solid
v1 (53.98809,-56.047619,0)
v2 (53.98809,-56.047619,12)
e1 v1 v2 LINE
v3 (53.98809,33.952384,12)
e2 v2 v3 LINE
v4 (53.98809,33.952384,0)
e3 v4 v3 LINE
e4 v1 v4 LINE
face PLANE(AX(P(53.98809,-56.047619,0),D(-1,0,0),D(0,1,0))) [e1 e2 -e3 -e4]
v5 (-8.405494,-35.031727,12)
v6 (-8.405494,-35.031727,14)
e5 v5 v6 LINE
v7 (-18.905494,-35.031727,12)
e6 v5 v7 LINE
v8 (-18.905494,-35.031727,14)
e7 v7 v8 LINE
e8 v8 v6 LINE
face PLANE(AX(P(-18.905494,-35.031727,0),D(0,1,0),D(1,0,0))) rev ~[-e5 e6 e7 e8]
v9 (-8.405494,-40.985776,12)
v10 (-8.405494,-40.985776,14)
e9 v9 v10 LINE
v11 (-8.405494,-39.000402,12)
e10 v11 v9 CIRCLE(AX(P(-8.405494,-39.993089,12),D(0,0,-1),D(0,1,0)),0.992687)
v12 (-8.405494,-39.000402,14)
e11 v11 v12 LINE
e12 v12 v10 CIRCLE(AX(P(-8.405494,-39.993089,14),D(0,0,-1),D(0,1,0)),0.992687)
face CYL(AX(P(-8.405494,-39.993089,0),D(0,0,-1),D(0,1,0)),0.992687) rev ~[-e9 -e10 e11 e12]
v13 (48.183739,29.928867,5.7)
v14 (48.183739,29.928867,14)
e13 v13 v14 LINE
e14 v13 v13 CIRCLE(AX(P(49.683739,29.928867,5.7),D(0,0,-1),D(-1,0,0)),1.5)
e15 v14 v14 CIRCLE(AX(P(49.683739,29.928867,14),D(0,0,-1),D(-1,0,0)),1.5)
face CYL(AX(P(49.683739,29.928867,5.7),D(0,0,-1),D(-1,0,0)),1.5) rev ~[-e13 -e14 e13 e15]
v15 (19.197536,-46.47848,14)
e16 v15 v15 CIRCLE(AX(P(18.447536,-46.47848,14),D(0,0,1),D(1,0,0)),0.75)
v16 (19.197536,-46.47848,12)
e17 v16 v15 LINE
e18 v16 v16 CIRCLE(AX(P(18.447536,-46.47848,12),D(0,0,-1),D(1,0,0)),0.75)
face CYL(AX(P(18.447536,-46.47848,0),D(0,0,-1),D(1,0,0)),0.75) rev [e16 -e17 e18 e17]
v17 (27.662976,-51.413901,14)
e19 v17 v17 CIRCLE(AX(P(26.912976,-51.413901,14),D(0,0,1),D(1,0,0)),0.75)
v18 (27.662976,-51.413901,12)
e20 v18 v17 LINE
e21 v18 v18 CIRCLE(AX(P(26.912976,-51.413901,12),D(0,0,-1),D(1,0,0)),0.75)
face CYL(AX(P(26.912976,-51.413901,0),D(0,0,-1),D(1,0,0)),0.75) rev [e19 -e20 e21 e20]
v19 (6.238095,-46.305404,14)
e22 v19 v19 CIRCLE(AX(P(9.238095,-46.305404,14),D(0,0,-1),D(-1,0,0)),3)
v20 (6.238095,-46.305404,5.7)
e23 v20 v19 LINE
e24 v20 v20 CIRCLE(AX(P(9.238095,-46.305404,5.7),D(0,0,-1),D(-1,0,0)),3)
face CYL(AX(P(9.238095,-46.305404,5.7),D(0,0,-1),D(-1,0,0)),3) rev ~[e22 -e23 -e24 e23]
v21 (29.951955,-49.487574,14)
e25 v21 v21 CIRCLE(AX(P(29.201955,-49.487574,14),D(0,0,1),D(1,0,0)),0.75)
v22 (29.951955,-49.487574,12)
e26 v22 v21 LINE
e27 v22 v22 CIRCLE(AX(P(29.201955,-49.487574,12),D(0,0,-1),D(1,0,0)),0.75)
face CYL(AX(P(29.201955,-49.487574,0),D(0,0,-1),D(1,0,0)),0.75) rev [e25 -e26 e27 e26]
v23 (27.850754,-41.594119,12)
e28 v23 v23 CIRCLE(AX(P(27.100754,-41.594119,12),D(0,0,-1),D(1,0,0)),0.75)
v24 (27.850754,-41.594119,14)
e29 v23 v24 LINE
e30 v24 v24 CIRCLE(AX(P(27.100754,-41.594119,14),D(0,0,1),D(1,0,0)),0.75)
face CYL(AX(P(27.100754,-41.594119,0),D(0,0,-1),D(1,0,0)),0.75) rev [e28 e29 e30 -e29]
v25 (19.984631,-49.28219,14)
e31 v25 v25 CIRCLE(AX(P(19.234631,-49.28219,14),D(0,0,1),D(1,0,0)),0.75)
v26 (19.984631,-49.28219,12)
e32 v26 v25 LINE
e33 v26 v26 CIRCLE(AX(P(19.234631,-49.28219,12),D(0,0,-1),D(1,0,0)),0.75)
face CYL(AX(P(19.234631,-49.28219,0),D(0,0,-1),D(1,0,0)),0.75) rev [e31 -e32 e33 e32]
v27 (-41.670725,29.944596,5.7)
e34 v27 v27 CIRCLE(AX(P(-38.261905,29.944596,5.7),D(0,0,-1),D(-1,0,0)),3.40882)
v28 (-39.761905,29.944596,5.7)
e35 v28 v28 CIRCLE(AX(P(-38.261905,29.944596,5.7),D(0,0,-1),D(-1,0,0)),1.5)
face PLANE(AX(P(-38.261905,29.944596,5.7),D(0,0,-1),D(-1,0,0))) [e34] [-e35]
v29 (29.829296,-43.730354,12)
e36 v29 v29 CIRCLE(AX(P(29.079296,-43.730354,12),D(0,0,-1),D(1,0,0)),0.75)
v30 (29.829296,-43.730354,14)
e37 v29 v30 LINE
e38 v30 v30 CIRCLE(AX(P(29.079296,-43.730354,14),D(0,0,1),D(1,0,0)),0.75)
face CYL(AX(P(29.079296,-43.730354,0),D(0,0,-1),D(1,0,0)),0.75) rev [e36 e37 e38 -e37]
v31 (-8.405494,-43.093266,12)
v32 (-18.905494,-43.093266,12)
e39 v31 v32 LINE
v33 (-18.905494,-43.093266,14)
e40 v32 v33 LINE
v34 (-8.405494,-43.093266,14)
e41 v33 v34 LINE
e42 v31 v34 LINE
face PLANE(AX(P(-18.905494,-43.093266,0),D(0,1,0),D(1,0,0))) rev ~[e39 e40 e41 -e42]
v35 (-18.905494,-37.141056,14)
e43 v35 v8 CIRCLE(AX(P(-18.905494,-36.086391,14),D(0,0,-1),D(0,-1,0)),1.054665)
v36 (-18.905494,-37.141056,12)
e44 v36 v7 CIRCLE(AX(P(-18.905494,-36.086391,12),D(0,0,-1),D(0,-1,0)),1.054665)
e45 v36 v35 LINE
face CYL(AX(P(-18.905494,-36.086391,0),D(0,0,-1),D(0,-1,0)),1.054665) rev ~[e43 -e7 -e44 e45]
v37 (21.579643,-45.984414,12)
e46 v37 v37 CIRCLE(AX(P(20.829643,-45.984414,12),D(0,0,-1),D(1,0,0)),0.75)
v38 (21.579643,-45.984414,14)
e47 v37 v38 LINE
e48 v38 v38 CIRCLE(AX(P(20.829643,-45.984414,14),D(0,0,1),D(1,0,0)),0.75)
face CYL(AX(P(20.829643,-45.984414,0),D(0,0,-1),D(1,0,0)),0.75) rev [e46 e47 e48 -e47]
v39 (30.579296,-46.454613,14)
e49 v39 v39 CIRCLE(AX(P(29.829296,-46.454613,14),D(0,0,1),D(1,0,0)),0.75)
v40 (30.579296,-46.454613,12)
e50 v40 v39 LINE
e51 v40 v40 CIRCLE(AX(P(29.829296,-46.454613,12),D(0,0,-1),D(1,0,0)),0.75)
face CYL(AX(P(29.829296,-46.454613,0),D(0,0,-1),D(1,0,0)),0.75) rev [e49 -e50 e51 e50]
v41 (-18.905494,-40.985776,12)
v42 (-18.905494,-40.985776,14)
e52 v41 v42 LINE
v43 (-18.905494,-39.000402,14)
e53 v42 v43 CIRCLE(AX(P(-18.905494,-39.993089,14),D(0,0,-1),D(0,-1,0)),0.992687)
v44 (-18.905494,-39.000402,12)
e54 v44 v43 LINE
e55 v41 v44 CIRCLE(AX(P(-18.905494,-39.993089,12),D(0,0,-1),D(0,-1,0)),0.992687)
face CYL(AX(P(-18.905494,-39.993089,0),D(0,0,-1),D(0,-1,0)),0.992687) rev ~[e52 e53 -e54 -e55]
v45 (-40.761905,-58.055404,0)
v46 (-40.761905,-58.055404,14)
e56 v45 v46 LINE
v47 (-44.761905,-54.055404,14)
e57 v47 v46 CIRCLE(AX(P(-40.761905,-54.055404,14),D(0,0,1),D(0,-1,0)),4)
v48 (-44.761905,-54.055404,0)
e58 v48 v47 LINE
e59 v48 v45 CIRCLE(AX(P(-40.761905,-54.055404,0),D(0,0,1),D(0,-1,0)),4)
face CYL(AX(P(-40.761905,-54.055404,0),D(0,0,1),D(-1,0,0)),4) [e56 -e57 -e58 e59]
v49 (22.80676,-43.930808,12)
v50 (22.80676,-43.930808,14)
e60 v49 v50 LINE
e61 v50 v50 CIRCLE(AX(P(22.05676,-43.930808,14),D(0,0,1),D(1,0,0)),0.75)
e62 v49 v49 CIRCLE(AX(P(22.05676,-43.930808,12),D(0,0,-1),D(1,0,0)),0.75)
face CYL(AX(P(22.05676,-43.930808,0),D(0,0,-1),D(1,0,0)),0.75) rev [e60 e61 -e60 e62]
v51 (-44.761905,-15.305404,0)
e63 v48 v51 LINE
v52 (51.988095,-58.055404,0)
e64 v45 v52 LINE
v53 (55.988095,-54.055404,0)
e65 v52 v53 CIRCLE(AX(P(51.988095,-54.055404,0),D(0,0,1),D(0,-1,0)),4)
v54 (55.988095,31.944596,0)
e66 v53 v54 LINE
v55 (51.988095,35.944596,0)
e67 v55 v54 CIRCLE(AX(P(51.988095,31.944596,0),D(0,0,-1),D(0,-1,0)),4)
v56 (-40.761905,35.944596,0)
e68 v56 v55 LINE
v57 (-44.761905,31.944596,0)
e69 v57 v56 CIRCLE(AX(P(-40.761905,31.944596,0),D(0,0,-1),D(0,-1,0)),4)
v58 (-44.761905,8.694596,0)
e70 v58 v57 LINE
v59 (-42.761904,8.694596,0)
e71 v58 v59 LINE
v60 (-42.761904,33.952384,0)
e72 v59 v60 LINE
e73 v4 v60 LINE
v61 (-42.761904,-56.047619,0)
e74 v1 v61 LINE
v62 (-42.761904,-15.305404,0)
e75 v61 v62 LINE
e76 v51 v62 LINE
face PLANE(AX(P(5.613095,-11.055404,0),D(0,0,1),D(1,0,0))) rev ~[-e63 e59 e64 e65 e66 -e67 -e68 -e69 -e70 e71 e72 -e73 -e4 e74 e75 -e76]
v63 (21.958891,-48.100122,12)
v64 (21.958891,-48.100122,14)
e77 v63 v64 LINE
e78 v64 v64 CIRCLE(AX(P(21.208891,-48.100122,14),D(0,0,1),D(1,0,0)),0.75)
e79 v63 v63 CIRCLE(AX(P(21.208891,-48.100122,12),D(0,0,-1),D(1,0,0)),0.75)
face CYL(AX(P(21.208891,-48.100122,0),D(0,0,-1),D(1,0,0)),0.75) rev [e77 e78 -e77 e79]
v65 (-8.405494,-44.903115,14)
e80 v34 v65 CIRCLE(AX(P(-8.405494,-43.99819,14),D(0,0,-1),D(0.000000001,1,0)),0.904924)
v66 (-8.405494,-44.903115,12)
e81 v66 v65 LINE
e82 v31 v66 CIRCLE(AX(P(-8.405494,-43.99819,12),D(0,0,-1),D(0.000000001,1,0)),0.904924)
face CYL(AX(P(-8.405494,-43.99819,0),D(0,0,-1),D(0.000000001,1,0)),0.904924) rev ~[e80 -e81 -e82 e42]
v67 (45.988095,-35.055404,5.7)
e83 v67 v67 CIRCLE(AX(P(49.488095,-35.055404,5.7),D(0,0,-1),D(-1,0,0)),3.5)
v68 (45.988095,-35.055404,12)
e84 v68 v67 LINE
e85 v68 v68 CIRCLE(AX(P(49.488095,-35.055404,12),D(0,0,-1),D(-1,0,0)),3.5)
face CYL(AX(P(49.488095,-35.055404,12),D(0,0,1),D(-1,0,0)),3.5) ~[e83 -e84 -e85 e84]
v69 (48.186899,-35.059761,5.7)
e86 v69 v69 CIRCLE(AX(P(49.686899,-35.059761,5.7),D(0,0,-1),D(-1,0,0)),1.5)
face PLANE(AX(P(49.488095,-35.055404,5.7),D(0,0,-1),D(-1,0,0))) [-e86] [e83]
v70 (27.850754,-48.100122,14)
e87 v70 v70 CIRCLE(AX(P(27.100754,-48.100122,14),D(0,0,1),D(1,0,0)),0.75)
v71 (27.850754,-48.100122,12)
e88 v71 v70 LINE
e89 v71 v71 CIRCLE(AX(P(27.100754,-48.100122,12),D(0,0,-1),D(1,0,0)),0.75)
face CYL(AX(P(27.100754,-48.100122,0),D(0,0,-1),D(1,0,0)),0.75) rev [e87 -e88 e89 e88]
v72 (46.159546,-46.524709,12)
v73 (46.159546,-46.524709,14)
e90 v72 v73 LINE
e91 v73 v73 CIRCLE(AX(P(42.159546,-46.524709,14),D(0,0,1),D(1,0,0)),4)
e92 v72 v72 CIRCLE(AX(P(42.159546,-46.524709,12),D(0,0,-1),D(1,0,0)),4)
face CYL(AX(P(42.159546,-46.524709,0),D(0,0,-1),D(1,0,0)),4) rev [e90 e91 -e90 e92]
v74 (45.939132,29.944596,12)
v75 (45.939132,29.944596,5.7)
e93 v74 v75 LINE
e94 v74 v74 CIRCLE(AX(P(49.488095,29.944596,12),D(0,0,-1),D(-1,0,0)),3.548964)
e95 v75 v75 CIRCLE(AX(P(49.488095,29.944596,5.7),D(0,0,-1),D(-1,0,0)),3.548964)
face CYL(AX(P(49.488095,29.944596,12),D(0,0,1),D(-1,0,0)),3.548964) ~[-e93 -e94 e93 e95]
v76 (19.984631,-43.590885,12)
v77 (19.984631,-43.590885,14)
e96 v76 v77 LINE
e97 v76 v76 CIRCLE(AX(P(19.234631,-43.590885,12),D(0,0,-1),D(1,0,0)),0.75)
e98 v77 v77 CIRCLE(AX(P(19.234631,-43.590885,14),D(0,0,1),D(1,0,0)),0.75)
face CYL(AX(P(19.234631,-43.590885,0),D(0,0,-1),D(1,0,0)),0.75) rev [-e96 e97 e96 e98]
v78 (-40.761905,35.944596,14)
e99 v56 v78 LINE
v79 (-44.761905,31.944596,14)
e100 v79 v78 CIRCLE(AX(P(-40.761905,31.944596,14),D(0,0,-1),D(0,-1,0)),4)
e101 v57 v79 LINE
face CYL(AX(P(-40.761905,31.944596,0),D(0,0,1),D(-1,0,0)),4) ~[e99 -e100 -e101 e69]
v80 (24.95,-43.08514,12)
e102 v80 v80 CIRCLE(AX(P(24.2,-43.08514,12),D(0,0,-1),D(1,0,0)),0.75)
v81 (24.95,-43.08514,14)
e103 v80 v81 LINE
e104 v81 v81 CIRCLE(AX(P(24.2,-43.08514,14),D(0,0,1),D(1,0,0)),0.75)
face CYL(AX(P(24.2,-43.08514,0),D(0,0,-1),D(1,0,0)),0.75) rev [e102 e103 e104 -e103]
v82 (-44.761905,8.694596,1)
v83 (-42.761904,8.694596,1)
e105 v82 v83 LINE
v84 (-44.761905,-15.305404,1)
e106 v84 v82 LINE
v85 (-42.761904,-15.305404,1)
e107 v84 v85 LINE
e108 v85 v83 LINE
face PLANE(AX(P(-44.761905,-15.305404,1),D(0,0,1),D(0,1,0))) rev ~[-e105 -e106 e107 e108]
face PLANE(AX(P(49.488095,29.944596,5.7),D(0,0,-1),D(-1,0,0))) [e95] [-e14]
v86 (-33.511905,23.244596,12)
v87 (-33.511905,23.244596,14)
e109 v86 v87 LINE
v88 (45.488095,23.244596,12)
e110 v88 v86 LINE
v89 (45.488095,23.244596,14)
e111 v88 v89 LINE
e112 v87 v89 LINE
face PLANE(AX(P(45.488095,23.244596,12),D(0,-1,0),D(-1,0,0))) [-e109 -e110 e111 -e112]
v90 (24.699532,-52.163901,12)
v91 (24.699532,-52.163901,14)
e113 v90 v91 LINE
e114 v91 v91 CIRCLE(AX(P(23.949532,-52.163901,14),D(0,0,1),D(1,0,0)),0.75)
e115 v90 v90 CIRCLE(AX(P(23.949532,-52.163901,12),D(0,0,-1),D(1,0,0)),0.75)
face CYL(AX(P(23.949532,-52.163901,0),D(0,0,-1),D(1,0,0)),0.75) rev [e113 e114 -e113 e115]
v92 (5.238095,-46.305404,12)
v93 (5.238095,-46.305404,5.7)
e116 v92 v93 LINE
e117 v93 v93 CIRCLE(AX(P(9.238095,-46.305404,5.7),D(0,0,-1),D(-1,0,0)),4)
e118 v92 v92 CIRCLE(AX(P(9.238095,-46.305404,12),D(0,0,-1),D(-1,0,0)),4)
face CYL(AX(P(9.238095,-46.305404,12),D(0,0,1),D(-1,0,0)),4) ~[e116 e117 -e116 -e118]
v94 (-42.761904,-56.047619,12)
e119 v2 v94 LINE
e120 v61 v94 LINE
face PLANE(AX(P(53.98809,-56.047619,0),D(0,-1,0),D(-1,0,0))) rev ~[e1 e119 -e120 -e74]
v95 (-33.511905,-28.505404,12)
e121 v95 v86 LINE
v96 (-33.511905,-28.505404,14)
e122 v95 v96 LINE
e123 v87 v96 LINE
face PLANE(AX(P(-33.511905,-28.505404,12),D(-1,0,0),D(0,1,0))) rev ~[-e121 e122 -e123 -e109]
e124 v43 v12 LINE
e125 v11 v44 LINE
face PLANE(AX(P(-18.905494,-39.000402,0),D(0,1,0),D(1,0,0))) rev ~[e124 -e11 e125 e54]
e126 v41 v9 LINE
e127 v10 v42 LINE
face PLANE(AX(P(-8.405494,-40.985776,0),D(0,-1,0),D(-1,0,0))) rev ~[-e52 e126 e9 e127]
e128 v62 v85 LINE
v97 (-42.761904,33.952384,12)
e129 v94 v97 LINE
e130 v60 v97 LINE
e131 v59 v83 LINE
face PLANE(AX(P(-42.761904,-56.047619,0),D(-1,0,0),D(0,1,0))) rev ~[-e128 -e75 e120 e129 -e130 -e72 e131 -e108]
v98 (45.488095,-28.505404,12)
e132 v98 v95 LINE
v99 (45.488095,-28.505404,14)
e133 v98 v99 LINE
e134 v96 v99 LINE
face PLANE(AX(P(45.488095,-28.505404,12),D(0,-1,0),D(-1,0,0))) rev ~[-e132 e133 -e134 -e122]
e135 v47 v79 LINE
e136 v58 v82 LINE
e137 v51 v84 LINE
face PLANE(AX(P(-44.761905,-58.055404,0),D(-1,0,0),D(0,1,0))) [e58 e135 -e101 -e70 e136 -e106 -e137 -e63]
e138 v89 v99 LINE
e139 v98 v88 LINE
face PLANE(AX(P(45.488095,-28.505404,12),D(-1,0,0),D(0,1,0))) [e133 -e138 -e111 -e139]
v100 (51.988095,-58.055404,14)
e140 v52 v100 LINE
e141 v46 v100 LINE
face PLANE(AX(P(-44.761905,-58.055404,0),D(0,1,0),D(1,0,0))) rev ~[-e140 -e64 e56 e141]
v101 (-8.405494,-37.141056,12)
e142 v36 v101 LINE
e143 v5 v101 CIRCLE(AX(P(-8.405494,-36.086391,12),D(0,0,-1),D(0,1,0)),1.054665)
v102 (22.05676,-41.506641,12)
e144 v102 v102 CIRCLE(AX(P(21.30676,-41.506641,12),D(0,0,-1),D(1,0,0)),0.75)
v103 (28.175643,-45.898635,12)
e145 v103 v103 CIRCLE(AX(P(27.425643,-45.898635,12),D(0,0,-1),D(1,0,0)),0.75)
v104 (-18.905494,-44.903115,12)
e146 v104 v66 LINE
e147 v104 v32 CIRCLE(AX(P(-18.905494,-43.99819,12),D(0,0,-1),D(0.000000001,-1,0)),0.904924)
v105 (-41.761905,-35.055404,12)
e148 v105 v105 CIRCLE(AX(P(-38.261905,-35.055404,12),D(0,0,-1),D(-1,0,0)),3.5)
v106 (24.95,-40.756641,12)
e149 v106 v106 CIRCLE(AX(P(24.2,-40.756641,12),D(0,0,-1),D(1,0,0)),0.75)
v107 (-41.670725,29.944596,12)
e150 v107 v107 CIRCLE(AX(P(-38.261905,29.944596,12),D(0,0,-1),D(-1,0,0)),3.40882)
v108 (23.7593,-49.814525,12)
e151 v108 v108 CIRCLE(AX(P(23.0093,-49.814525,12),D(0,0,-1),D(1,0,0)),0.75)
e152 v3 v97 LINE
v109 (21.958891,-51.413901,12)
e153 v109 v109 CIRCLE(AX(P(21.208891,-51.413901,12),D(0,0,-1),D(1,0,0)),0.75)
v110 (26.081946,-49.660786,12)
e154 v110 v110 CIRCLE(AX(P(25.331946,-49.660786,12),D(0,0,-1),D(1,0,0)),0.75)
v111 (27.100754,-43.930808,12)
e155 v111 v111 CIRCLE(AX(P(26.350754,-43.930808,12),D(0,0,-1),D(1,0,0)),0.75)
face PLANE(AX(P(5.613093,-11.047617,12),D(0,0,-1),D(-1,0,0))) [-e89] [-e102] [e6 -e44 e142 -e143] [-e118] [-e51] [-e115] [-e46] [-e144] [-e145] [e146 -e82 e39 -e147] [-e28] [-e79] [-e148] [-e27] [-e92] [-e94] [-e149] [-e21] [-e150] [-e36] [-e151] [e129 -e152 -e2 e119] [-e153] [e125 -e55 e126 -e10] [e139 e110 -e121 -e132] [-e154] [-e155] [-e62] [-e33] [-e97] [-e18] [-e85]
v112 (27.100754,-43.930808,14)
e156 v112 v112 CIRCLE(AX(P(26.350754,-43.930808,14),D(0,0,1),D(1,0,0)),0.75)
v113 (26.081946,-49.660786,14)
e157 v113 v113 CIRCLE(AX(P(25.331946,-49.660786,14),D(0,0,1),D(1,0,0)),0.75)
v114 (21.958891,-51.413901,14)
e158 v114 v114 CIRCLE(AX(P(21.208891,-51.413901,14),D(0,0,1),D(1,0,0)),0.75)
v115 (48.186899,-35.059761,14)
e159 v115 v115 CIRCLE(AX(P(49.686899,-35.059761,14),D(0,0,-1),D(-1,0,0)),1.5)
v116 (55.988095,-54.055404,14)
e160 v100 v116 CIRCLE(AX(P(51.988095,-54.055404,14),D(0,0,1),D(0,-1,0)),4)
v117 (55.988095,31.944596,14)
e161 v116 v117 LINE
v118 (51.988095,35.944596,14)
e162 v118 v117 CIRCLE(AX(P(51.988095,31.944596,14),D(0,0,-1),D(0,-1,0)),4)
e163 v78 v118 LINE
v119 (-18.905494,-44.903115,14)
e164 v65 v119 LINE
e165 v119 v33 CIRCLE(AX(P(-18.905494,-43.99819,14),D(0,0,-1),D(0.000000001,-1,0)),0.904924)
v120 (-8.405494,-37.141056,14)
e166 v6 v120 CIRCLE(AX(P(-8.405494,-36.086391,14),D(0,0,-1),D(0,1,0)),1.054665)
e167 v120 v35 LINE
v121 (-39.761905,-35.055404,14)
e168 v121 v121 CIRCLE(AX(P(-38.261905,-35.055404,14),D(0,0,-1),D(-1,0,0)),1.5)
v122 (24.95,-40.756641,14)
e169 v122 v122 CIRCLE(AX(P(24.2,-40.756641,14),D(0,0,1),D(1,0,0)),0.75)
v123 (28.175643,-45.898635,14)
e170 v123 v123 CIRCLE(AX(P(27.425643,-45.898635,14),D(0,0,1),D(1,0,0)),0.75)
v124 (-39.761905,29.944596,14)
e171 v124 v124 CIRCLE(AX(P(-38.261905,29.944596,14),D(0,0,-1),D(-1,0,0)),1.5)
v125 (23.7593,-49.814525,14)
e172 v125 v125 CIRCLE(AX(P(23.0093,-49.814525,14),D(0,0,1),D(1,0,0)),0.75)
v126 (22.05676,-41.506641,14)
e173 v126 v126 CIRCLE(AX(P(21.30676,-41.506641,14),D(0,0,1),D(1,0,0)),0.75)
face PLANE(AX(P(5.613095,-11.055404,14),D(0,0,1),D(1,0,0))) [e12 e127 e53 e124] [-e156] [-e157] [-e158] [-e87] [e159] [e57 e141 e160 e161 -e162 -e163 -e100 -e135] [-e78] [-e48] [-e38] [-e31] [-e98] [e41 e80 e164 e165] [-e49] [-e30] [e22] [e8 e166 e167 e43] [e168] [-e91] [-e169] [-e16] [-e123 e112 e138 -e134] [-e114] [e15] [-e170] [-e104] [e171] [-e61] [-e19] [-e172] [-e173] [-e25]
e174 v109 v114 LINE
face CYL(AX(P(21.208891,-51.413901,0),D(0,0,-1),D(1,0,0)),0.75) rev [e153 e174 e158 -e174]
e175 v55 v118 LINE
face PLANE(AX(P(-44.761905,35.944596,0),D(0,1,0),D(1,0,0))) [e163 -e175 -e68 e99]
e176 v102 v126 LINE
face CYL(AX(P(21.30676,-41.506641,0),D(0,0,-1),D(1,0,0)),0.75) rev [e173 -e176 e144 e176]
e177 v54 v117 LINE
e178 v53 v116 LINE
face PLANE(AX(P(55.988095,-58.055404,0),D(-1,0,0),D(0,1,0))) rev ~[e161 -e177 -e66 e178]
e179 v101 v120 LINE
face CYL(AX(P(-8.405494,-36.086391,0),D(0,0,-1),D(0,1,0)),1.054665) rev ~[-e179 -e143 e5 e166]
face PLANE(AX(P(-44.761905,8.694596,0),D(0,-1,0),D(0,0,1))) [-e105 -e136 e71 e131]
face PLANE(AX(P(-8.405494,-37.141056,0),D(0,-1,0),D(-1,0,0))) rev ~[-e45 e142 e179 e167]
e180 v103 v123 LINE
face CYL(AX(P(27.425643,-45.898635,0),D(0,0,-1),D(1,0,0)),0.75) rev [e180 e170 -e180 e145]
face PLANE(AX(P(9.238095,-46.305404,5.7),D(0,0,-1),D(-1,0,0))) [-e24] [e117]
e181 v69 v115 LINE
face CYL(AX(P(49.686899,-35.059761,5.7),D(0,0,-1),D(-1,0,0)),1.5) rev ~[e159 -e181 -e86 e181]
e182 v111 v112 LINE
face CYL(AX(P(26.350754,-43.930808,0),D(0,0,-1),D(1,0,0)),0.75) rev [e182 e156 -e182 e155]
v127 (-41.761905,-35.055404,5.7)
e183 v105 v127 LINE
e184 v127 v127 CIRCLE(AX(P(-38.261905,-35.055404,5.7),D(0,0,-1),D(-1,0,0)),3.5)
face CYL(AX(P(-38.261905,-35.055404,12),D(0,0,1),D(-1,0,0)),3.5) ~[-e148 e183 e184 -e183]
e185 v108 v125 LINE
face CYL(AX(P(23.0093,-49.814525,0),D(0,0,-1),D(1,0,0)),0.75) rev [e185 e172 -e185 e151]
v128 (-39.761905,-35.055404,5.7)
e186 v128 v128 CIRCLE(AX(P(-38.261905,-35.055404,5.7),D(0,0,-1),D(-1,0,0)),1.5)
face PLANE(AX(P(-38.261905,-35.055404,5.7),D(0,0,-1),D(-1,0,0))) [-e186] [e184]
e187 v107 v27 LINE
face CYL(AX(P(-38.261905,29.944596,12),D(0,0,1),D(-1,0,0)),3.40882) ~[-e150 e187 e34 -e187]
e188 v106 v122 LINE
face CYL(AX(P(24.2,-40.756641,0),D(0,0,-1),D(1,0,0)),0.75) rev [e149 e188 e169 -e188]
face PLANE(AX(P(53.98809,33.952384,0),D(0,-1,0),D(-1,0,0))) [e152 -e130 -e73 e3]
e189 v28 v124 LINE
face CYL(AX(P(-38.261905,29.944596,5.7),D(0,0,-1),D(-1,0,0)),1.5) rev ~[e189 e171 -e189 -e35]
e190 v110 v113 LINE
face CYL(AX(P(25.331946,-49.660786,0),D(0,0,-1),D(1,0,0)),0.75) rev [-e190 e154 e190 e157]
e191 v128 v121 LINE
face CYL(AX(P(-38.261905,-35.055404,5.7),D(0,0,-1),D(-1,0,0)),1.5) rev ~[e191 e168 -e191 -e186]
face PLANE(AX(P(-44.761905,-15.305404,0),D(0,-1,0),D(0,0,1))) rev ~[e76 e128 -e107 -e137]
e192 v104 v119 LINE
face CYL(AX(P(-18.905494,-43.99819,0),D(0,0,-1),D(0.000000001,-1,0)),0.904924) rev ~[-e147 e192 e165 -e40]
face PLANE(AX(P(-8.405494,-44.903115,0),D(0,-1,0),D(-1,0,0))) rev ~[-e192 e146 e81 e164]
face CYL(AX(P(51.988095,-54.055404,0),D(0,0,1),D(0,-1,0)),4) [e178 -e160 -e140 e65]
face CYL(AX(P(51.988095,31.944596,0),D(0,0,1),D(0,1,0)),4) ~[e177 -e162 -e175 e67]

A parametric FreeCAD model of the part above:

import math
import FreeCAD as App
import Part
import Sketcher
Q = App.Units.Quantity


def edges_at(feature, points):
    """Names of the edges that pass closest to the given points."""
    edges = feature.Shape.Edges
    near = lambda p: min(range(len(edges)), key=lambda i: edges[i].distToShape(Part.Vertex(*p))[0])
    return sorted({f"Edge{near(p) + 1}" for p in points})


def add_polygon(sketch, points):
    """Adds a closed chain of lines whose ends are joined by coincident constraints."""
    first, n = sketch.GeometryCount, len(points)
    for a, b in zip(points, points[1:] + points[:1]):
        sketch.addGeometry(Part.LineSegment(App.Vector(*a, 0), App.Vector(*b, 0)), False)
    for i in range(n):
        sketch.addConstraint(Sketcher.Constraint("Coincident", first + i, 2, first + (i + 1) % n, 1))

doc = App.newDocument("Part")
body = doc.addObject("PartDesign::Body", "Body")

# Sketch on XY plane
sketch1 = doc.addObject("Sketcher::SketchObject", "Sketch")
body.addObject(sketch1)
sketch1.AttachmentSupport = (doc.XY_Plane, [""])
sketch1.MapMode = "FlatFace"
add_polygon(sketch1, [(-44.8, 35.9), (-44.8, -58.1), (56, -58.1), (56, 35.9)])  # lines 0-3
sketch1.addGeometry(Part.ArcOfCircle(Part.Circle(App.Vector(-18.9, -44, 0), App.Vector(0, 0, 1), 0.9), math.radians(90), math.radians(270)), False)  # 4
sketch1.addGeometry(Part.LineSegment(App.Vector(-18.9, -43.1, 0), App.Vector(-8.4, -43.1, 0)), False)  # 5
sketch1.addGeometry(Part.ArcOfCircle(Part.Circle(App.Vector(-8.4, -44, 0), App.Vector(0, 0, 1), 0.9), math.radians(-90), math.radians(90)), False)  # 6
sketch1.addGeometry(Part.LineSegment(App.Vector(-8.4, -44.9, 0), App.Vector(-18.9, -44.9, 0)), False)  # 7
sketch1.addGeometry(Part.Circle(App.Vector(21.2, -51.4, 0), App.Vector(0, 0, 1), 0.8), False)  # 8
sketch1.addGeometry(Part.Circle(App.Vector(23.9, -52.2, 0), App.Vector(0, 0, 1), 0.8), False)  # 9
sketch1.addGeometry(Part.Circle(App.Vector(26.9, -51.4, 0), App.Vector(0, 0, 1), 0.8), False)  # 10
sketch1.addGeometry(Part.Circle(App.Vector(19.2, -49.3, 0), App.Vector(0, 0, 1), 0.8), False)  # 11
sketch1.addGeometry(Part.Circle(App.Vector(23, -49.8, 0), App.Vector(0, 0, 1), 0.8), False)  # 12
sketch1.addGeometry(Part.Circle(App.Vector(25.3, -49.7, 0), App.Vector(0, 0, 1), 0.8), False)  # 13
sketch1.addGeometry(Part.Circle(App.Vector(29.2, -49.5, 0), App.Vector(0, 0, 1), 0.8), False)  # 14
sketch1.addGeometry(Part.Circle(App.Vector(21.2, -48.1, 0), App.Vector(0, 0, 1), 0.8), False)  # 15
sketch1.addGeometry(Part.Circle(App.Vector(18.4, -46.5, 0), App.Vector(0, 0, 1), 0.8), False)  # 16
sketch1.addGeometry(Part.Circle(App.Vector(27.1, -48.1, 0), App.Vector(0, 0, 1), 0.8), False)  # 17
sketch1.addGeometry(Part.Circle(App.Vector(20.8, -46, 0), App.Vector(0, 0, 1), 0.8), False)  # 18
sketch1.addGeometry(Part.Circle(App.Vector(27.4, -45.9, 0), App.Vector(0, 0, 1), 0.8), False)  # 19
sketch1.addGeometry(Part.Circle(App.Vector(29.8, -46.5, 0), App.Vector(0, 0, 1), 0.8), False)  # 20
sketch1.addGeometry(Part.Circle(App.Vector(42.2, -46.5, 0), App.Vector(0, 0, 1), 4), False)  # 21
sketch1.addGeometry(Part.ArcOfCircle(Part.Circle(App.Vector(-18.9, -40, 0), App.Vector(0, 0, 1), 1), math.radians(90), math.radians(270)), False)  # 22
sketch1.addGeometry(Part.LineSegment(App.Vector(-18.9, -39, 0), App.Vector(-8.4, -39, 0)), False)  # 23
sketch1.addGeometry(Part.ArcOfCircle(Part.Circle(App.Vector(-8.4, -40, 0), App.Vector(0, 0, 1), 1), math.radians(-90), math.radians(90)), False)  # 24
sketch1.addGeometry(Part.LineSegment(App.Vector(-8.4, -41, 0), App.Vector(-18.9, -41, 0)), False)  # 25
sketch1.addGeometry(Part.ArcOfCircle(Part.Circle(App.Vector(-18.9, -36.1, 0), App.Vector(0, 0, 1), 1.1), math.radians(90), math.radians(270)), False)  # 26
sketch1.addGeometry(Part.LineSegment(App.Vector(-18.9, -35, 0), App.Vector(-8.4, -35, 0)), False)  # 27
sketch1.addGeometry(Part.ArcOfCircle(Part.Circle(App.Vector(-8.4, -36.1, 0), App.Vector(0, 0, 1), 1.1), math.radians(-90), math.radians(90)), False)  # 28
sketch1.addGeometry(Part.LineSegment(App.Vector(-8.4, -37.1, 0), App.Vector(-18.9, -37.1, 0)), False)  # 29
sketch1.addGeometry(Part.Circle(App.Vector(19.2, -43.6, 0), App.Vector(0, 0, 1), 0.8), False)  # 30
sketch1.addGeometry(Part.Circle(App.Vector(22.1, -43.9, 0), App.Vector(0, 0, 1), 0.8), False)  # 31
sketch1.addGeometry(Part.Circle(App.Vector(24.2, -43.1, 0), App.Vector(0, 0, 1), 0.8), False)  # 32
sketch1.addGeometry(Part.Circle(App.Vector(26.4, -43.9, 0), App.Vector(0, 0, 1), 0.8), False)  # 33
sketch1.addGeometry(Part.Circle(App.Vector(29.1, -43.7, 0), App.Vector(0, 0, 1), 0.8), False)  # 34
sketch1.addGeometry(Part.Circle(App.Vector(21.3, -41.5, 0), App.Vector(0, 0, 1), 0.8), False)  # 35
sketch1.addGeometry(Part.Circle(App.Vector(24.2, -40.8, 0), App.Vector(0, 0, 1), 0.8), False)  # 36
sketch1.addGeometry(Part.Circle(App.Vector(27.1, -41.6, 0), App.Vector(0, 0, 1), 0.8), False)  # 37
sketch1.addConstraint(Sketcher.Constraint("Tangent", 4, 1, 5, 1))
sketch1.addConstraint(Sketcher.Constraint("Tangent", 5, 2, 6, 2))
sketch1.addConstraint(Sketcher.Constraint("Tangent", 6, 1, 7, 1))
sketch1.addConstraint(Sketcher.Constraint("Tangent", 7, 2, 4, 2))
sketch1.addConstraint(Sketcher.Constraint("Tangent", 22, 1, 23, 1))
sketch1.addConstraint(Sketcher.Constraint("Tangent", 23, 2, 24, 2))
sketch1.addConstraint(Sketcher.Constraint("Tangent", 24, 1, 25, 1))
sketch1.addConstraint(Sketcher.Constraint("Tangent", 25, 2, 22, 2))
sketch1.addConstraint(Sketcher.Constraint("Tangent", 26, 1, 27, 1))
sketch1.addConstraint(Sketcher.Constraint("Tangent", 27, 2, 28, 2))
sketch1.addConstraint(Sketcher.Constraint("Tangent", 28, 1, 29, 1))
sketch1.addConstraint(Sketcher.Constraint("Tangent", 29, 2, 26, 2))
sketch1.addConstraint(Sketcher.Constraint("Vertical", 0))
sketch1.addConstraint(Sketcher.Constraint("Horizontal", 1))
sketch1.addConstraint(Sketcher.Constraint("Vertical", 2))
sketch1.addConstraint(Sketcher.Constraint("Horizontal", 3))
sketch1.addConstraint(Sketcher.Constraint("Horizontal", 5))
sketch1.addConstraint(Sketcher.Constraint("Horizontal", 7))
sketch1.addConstraint(Sketcher.Constraint("Horizontal", 23))
sketch1.addConstraint(Sketcher.Constraint("Horizontal", 25))
sketch1.addConstraint(Sketcher.Constraint("Horizontal", 27))
sketch1.addConstraint(Sketcher.Constraint("Horizontal", 29))
sketch1.addConstraint(Sketcher.Constraint("Equal", 8, 9))
sketch1.addConstraint(Sketcher.Constraint("Equal", 9, 10))
sketch1.addConstraint(Sketcher.Constraint("Equal", 10, 11))
sketch1.addConstraint(Sketcher.Constraint("Equal", 11, 12))
sketch1.addConstraint(Sketcher.Constraint("Equal", 12, 13))
sketch1.addConstraint(Sketcher.Constraint("Equal", 13, 14))
sketch1.addConstraint(Sketcher.Constraint("Equal", 14, 15))
sketch1.addConstraint(Sketcher.Constraint("Equal", 15, 16))
sketch1.addConstraint(Sketcher.Constraint("Equal", 16, 17))
sketch1.addConstraint(Sketcher.Constraint("Equal", 17, 18))
sketch1.addConstraint(Sketcher.Constraint("Equal", 18, 19))
sketch1.addConstraint(Sketcher.Constraint("Equal", 19, 20))
sketch1.addConstraint(Sketcher.Constraint("Equal", 20, 30))
sketch1.addConstraint(Sketcher.Constraint("Equal", 30, 31))
sketch1.addConstraint(Sketcher.Constraint("Equal", 31, 32))
sketch1.addConstraint(Sketcher.Constraint("Equal", 32, 33))
sketch1.addConstraint(Sketcher.Constraint("Equal", 33, 34))
sketch1.addConstraint(Sketcher.Constraint("Equal", 34, 35))
sketch1.addConstraint(Sketcher.Constraint("Equal", 35, 36))
sketch1.addConstraint(Sketcher.Constraint("Equal", 36, 37))
sketch1.addConstraint(Sketcher.Constraint("Horizontal", 8, 3, 10, 3))
sketch1.addConstraint(Sketcher.Constraint("Horizontal", 15, 3, 17, 3))
sketch1.addConstraint(Sketcher.Constraint("Horizontal", 31, 3, 33, 3))
sketch1.addConstraint(Sketcher.Constraint("Vertical", 8, 3, 15, 3))
sketch1.addConstraint(Sketcher.Constraint("Vertical", 4, 3, 22, 3))
sketch1.addConstraint(Sketcher.Constraint("Vertical", 6, 3, 24, 3))
sketch1.addConstraint(Sketcher.Constraint("Vertical", 22, 3, 26, 3))
sketch1.addConstraint(Sketcher.Constraint("Vertical", 24, 3, 28, 3))
sketch1.addConstraint(Sketcher.Constraint("Vertical", 11, 3, 30, 3))
sketch1.addConstraint(Sketcher.Constraint("Vertical", 32, 3, 36, 3))
sketch1.addConstraint(Sketcher.Constraint("Vertical", 17, 3, 37, 3))
sketch1.addConstraint(Sketcher.Constraint("Diameter", 21, Q("8 mm")))
sketch1.addConstraint(Sketcher.Constraint("Diameter", 8, Q("1.5 mm")))
sketch1.addConstraint(Sketcher.Constraint("DistanceY", 0, 2, 0, 1, Q("94 mm")))
sketch1.addConstraint(Sketcher.Constraint("DistanceX", 5, 1, 5, 2, Q("10.5 mm")))
sketch1.addConstraint(Sketcher.Constraint("DistanceX", 1, 1, 1, 2, Q("100.75 mm")))
sketch1.addConstraint(Sketcher.Constraint("DistanceX", -1, 1, 32, 3, Q("24.2 mm")))
sketch1.addConstraint(Sketcher.Constraint("DistanceY", 9, 3, 8, 3, Q("0.75 mm")))
sketch1.addConstraint(Sketcher.Constraint("DistanceX", 33, 3, 17, 3, Q("0.75 mm")))
sketch1.addConstraint(Sketcher.Constraint("DistanceX", 34, 3, 20, 3, Q("0.75 mm")))
sketch1.addConstraint(Sketcher.Constraint("DistanceX", 35, 3, 31, 3, Q("0.75 mm")))
sketch1.addConstraint(Sketcher.Constraint("DistanceY", 35, 3, 36, 3, Q("0.75 mm")))
sketch1.addConstraint(Sketcher.Constraint("Radius", 4, Q("0.904924 mm")))
sketch1.addConstraint(Sketcher.Constraint("Radius", 22, Q("0.992687 mm")))
sketch1.addConstraint(Sketcher.Constraint("Radius", 26, Q("1.054665 mm")))
sketch1.addConstraint(Sketcher.Constraint("DistanceY", 11, 3, 6, 3, Q("5.284 mm")))
sketch1.addConstraint(Sketcher.Constraint("DistanceY", 8, 3, -1, 1, Q("51.413901 mm")))
sketch1.addConstraint(Sketcher.Constraint("DistanceX", -1, 1, 12, 3, Q("23.0093 mm")))
sketch1.addConstraint(Sketcher.Constraint("DistanceX", 11, 3, 9, 3, Q("4.714901 mm")))
sketch1.addConstraint(Sketcher.Constraint("DistanceX", 17, 3, 14, 3, Q("2.101201 mm")))
sketch1.addConstraint(Sketcher.Constraint("DistanceY", 4, 3, 22, 3, Q("4.005102 mm")))
sketch1.addConstraint(Sketcher.Constraint("DistanceY", 4, 3, 26, 3, Q("7.911799 mm")))
sketch1.addConstraint(Sketcher.Constraint("DistanceY", 32, 3, 35, 3, Q("1.578499 mm")))
sketch1.addConstraint(Sketcher.Constraint("DistanceX", 20, 3, 1, 2, Q("26.158799 mm")))
sketch1.addConstraint(Sketcher.Constraint("DistanceY", 4, 3, -1, 1, Q("43.99819 mm")))
sketch1.addConstraint(Sketcher.Constraint("DistanceX", -1, 1, 8, 3, Q("21.208891 mm")))
sketch1.addConstraint(Sketcher.Constraint("DistanceX", -1, 1, 11, 3, Q("19.234631 mm")))
sketch1.addConstraint(Sketcher.Constraint("DistanceY", 16, 3, -1, 1, Q("46.47848 mm")))
sketch1.addConstraint(Sketcher.Constraint("DistanceY", 21, 3, -1, 1, Q("46.524709 mm")))
sketch1.addConstraint(Sketcher.Constraint("DistanceX", -1, 1, 31, 3, Q("22.05676 mm")))
sketch1.addConstraint(Sketcher.Constraint("DistanceY", 31, 3, -1, 1, Q("43.930808 mm")))
sketch1.addConstraint(Sketcher.Constraint("DistanceY", 32, 3, -1, 1, Q("43.08514 mm")))
sketch1.addConstraint(Sketcher.Constraint("DistanceY", 37, 3, -1, 1, Q("41.594119 mm")))
sketch1.addConstraint(Sketcher.Constraint("DistanceX", 6, 3, 10, 3, Q("35.318471 mm")))
sketch1.addConstraint(Sketcher.Constraint("DistanceY", 12, 3, 13, 3, Q("0.15374 mm")))
sketch1.addConstraint(Sketcher.Constraint("DistanceX", 13, 3, 10, 3, Q("1.581031 mm")))
sketch1.addConstraint(Sketcher.Constraint("DistanceX", 10, 3, 14, 3, Q("2.288979 mm")))
sketch1.addConstraint(Sketcher.Constraint("DistanceY", 13, 3, 14, 3, Q("0.173211 mm")))
sketch1.addConstraint(Sketcher.Constraint("DistanceY", 11, 3, 15, 3, Q("1.182068 mm")))
sketch1.addConstraint(Sketcher.Constraint("DistanceX", 16, 3, 13, 3, Q("6.884409 mm")))
sketch1.addConstraint(Sketcher.Constraint("DistanceY", 14, 3, 17, 3, Q("1.387452 mm")))
sketch1.addConstraint(Sketcher.Constraint("DistanceX", 9, 3, 17, 3, Q("3.151222 mm")))
sketch1.addConstraint(Sketcher.Constraint("DistanceX", 18, 3, 15, 3, Q("0.379248 mm")))
sketch1.addConstraint(Sketcher.Constraint("DistanceY", 15, 3, 18, 3, Q("2.115708 mm")))
sketch1.addConstraint(Sketcher.Constraint("DistanceX", 17, 3, 19, 3, Q("0.324889 mm")))
sketch1.addConstraint(Sketcher.Constraint("DistanceY", 14, 3, 19, 3, Q("3.58894 mm")))
sketch1.addConstraint(Sketcher.Constraint("DistanceY", 20, 3, 19, 3, Q("0.555978 mm")))
sketch1.addConstraint(Sketcher.Constraint("DistanceX", 14, 3, 20, 3, Q("0.627341 mm")))
sketch1.addConstraint(Sketcher.Constraint("DistanceX", 20, 3, 21, 3, Q("12.33025 mm")))
sketch1.addConstraint(Sketcher.Constraint("DistanceY", 18, 3, 30, 3, Q("2.393529 mm")))
sketch1.addConstraint(Sketcher.Constraint("DistanceY", 19, 3, 34, 3, Q("2.16828 mm")))
sketch1.addConstraint(Sketcher.Constraint("DistanceY", 1, 2, 14, 3, Q("8.56783 mm")))
pad1 = doc.addObject("PartDesign::Pad", "Pad")
body.addObject(pad1)
pad1.Profile = sketch1
pad1.Length = 14

# Sketch on XY plane
sketch2 = doc.addObject("Sketcher::SketchObject", "Sketch001")
body.addObject(sketch2)
sketch2.AttachmentSupport = (doc.XY_Plane, [""])
sketch2.MapMode = "FlatFace"
add_polygon(sketch2, [(54, 34), (54, -56), (-43, -56), (-43, 34)])  # lines 0-3
sketch2.addConstraint(Sketcher.Constraint("Vertical", 0))
sketch2.addConstraint(Sketcher.Constraint("Horizontal", 1))
sketch2.addConstraint(Sketcher.Constraint("Vertical", 2))
sketch2.addConstraint(Sketcher.Constraint("Horizontal", 3))
sketch2.addConstraint(Sketcher.Constraint("DistanceX", 1, 2, 1, 1, Q("96.749995 mm")))
sketch2.addConstraint(Sketcher.Constraint("DistanceY", 0, 2, 0, 1, Q("90.000004 mm")))
sketch2.addConstraint(Sketcher.Constraint("DistanceX", -1, 1, 0, 2, Q("53.98809 mm")))
sketch2.addConstraint(Sketcher.Constraint("DistanceY", 0, 2, -1, 1, Q("56.047619 mm")))
pocket1 = doc.addObject("PartDesign::Pocket", "Pocket")
body.addObject(pocket1)
pocket1.Profile = sketch2
pocket1.Length = 12
pocket1.Reversed = True

# Sketch on XY plane
sketch3 = doc.addObject("Sketcher::SketchObject", "Sketch002")
body.addObject(sketch3)
sketch3.AttachmentSupport = (doc.XY_Plane, [""])
sketch3.MapMode = "FlatFace"
sketch3.AttachmentOffset = App.Placement(App.Vector(0, 0, 12), App.Rotation())
sketch3.addGeometry(Part.Circle(App.Vector(49.5, 29.9, 0), App.Vector(0, 0, 1), 3.5), False)
sketch3.addGeometry(Part.Circle(App.Vector(-38.3, 29.9, 0), App.Vector(0, 0, 1), 3.4), False)
sketch3.addGeometry(Part.Circle(App.Vector(-38.3, -35.1, 0), App.Vector(0, 0, 1), 3.5), False)
sketch3.addGeometry(Part.Circle(App.Vector(49.5, -35.1, 0), App.Vector(0, 0, 1), 3.5), False)
sketch3.addConstraint(Sketcher.Constraint("Equal", 2, 3))
sketch3.addConstraint(Sketcher.Constraint("Horizontal", 0, 3, 1, 3))
sketch3.addConstraint(Sketcher.Constraint("Horizontal", 2, 3, 3, 3))
sketch3.addConstraint(Sketcher.Constraint("Vertical", 1, 3, 2, 3))
sketch3.addConstraint(Sketcher.Constraint("Vertical", 0, 3, 3, 3))
sketch3.addConstraint(Sketcher.Constraint("Diameter", 2, Q("7 mm")))
sketch3.addConstraint(Sketcher.Constraint("DistanceY", 2, 3, 1, 3, Q("65 mm")))
sketch3.addConstraint(Sketcher.Constraint("Diameter", 1, Q("6.81764 mm")))
sketch3.addConstraint(Sketcher.Constraint("DistanceX", 1, 3, 0, 3, Q("87.75 mm")))
sketch3.addConstraint(Sketcher.Constraint("Diameter", 0, Q("7.097927 mm")))
sketch3.addConstraint(Sketcher.Constraint("DistanceX", -1, 1, 0, 3, Q("49.488095 mm")))
sketch3.addConstraint(Sketcher.Constraint("DistanceY", -1, 1, 0, 3, Q("29.944596 mm")))
pad2 = doc.addObject("PartDesign::Pad", "Pad001")
body.addObject(pad2)
pad2.Profile = sketch3
pad2.Length = 6.3
pad2.Reversed = True

# Sketch on XY plane
sketch4 = doc.addObject("Sketcher::SketchObject", "Sketch003")
body.addObject(sketch4)
sketch4.AttachmentSupport = (doc.XY_Plane, [""])
sketch4.MapMode = "FlatFace"
sketch4.AttachmentOffset = App.Placement(App.Vector(0, 0, 12), App.Rotation())
sketch4.addGeometry(Part.Circle(App.Vector(9.2, -46.3, 0), App.Vector(0, 0, 1), 4), False)
sketch4.addConstraint(Sketcher.Constraint("Diameter", 0, Q("8 mm")))
sketch4.addConstraint(Sketcher.Constraint("DistanceX", -1, 1, 0, 3, Q("9.238095 mm")))
sketch4.addConstraint(Sketcher.Constraint("DistanceY", 0, 3, -1, 1, Q("46.305404 mm")))
pad3 = doc.addObject("PartDesign::Pad", "Pad002")
body.addObject(pad3)
pad3.Profile = sketch4
pad3.Length = 6.3
pad3.Reversed = True

# Sketch on XY plane
sketch5 = doc.addObject("Sketcher::SketchObject", "Sketch004")
body.addObject(sketch5)
sketch5.AttachmentSupport = (doc.XY_Plane, [""])
sketch5.MapMode = "FlatFace"
sketch5.AttachmentOffset = App.Placement(App.Vector(0, 0, 5.7), App.Rotation())
sketch5.addGeometry(Part.Circle(App.Vector(49.7, 29.9, 0), App.Vector(0, 0, 1), 1.5), False)
sketch5.addConstraint(Sketcher.Constraint("Diameter", 0, Q("3 mm")))
sketch5.addConstraint(Sketcher.Constraint("DistanceX", -1, 1, 0, 3, Q("49.683739 mm")))
sketch5.addConstraint(Sketcher.Constraint("DistanceY", -1, 1, 0, 3, Q("29.928867 mm")))
pocket2 = doc.addObject("PartDesign::Pocket", "Pocket001")
body.addObject(pocket2)
pocket2.Profile = sketch5
pocket2.Length = 10
pocket2.Reversed = True

# Sketch on XY plane
sketch6 = doc.addObject("Sketcher::SketchObject", "Sketch005")
body.addObject(sketch6)
sketch6.AttachmentSupport = (doc.XY_Plane, [""])
sketch6.MapMode = "FlatFace"
sketch6.AttachmentOffset = App.Placement(App.Vector(0, 0, 5.7), App.Rotation())
sketch6.addGeometry(Part.Circle(App.Vector(9.2, -46.3, 0), App.Vector(0, 0, 1), 3), False)
sketch6.addConstraint(Sketcher.Constraint("Diameter", 0, Q("6 mm")))
sketch6.addConstraint(Sketcher.Constraint("DistanceX", -1, 1, 0, 3, Q("9.238095 mm")))
sketch6.addConstraint(Sketcher.Constraint("DistanceY", 0, 3, -1, 1, Q("46.305404 mm")))
pocket3 = doc.addObject("PartDesign::Pocket", "Pocket002")
body.addObject(pocket3)
pocket3.Profile = sketch6
pocket3.Length = 10
pocket3.Reversed = True

# Sketch on XY plane
sketch7 = doc.addObject("Sketcher::SketchObject", "Sketch006")
body.addObject(sketch7)
sketch7.AttachmentSupport = (doc.XY_Plane, [""])
sketch7.MapMode = "FlatFace"
sketch7.AttachmentOffset = App.Placement(App.Vector(0, 0, 5.7), App.Rotation())
sketch7.addGeometry(Part.Circle(App.Vector(49.7, -35.1, 0), App.Vector(0, 0, 1), 1.5), False)
sketch7.addConstraint(Sketcher.Constraint("Diameter", 0, Q("3 mm")))
sketch7.addConstraint(Sketcher.Constraint("DistanceX", -1, 1, 0, 3, Q("49.686899 mm")))
sketch7.addConstraint(Sketcher.Constraint("DistanceY", 0, 3, -1, 1, Q("35.059761 mm")))
pocket4 = doc.addObject("PartDesign::Pocket", "Pocket003")
body.addObject(pocket4)
pocket4.Profile = sketch7
pocket4.Length = 10
pocket4.Reversed = True

# Sketch on XY plane
sketch8 = doc.addObject("Sketcher::SketchObject", "Sketch007")
body.addObject(sketch8)
sketch8.AttachmentSupport = (doc.XY_Plane, [""])
sketch8.MapMode = "FlatFace"
sketch8.AttachmentOffset = App.Placement(App.Vector(0, 0, 5.7), App.Rotation())
sketch8.addGeometry(Part.Circle(App.Vector(-38.3, 29.9, 0), App.Vector(0, 0, 1), 1.5), False)
sketch8.addGeometry(Part.Circle(App.Vector(-38.3, -35.1, 0), App.Vector(0, 0, 1), 1.5), False)
sketch8.addConstraint(Sketcher.Constraint("Equal", 0, 1))
sketch8.addConstraint(Sketcher.Constraint("Vertical", 0, 3, 1, 3))
sketch8.addConstraint(Sketcher.Constraint("Diameter", 0, Q("3 mm")))
sketch8.addConstraint(Sketcher.Constraint("DistanceY", 1, 3, 0, 3, Q("65 mm")))
sketch8.addConstraint(Sketcher.Constraint("DistanceX", 0, 3, -1, 1, Q("38.261905 mm")))
sketch8.addConstraint(Sketcher.Constraint("DistanceY", -1, 1, 0, 3, Q("29.944596 mm")))
pocket5 = doc.addObject("PartDesign::Pocket", "Pocket004")
body.addObject(pocket5)
pocket5.Profile = sketch8
pocket5.Length = 10
pocket5.Reversed = True

# Sketch on XY plane
sketch9 = doc.addObject("Sketcher::SketchObject", "Sketch008")
body.addObject(sketch9)
sketch9.AttachmentSupport = (doc.XY_Plane, [""])
sketch9.MapMode = "FlatFace"
sketch9.AttachmentOffset = App.Placement(App.Vector(0, 0, 12), App.Rotation())
add_polygon(sketch9, [(45, 23), (45, -29), (-34, -29), (-34, 23)])  # lines 0-3
sketch9.addConstraint(Sketcher.Constraint("Vertical", 0))
sketch9.addConstraint(Sketcher.Constraint("Horizontal", 1))
sketch9.addConstraint(Sketcher.Constraint("Vertical", 2))
sketch9.addConstraint(Sketcher.Constraint("Horizontal", 3))
sketch9.addConstraint(Sketcher.Constraint("DistanceX", 1, 2, 1, 1, Q("79 mm")))
sketch9.addConstraint(Sketcher.Constraint("DistanceY", 0, 2, 0, 1, Q("51.75 mm")))
sketch9.addConstraint(Sketcher.Constraint("DistanceX", -1, 1, 0, 2, Q("45.488095 mm")))
sketch9.addConstraint(Sketcher.Constraint("DistanceY", 0, 2, -1, 1, Q("28.505404 mm")))
pocket6 = doc.addObject("PartDesign::Pocket", "Pocket005")
body.addObject(pocket6)
pocket6.Profile = sketch9
pocket6.Length = 6.3
pocket6.Reversed = True
doc.recompute()

fillet = doc.addObject("PartDesign::Fillet", "Fillet")
body.addObject(fillet)
fillet.Base = (pocket6, edges_at(pocket6, [
    (-44.762, 35.945, 7),
    (55.988, 35.945, 7),
    (55.988, -58.055, 7),
    (-44.762, -58.055, 7),
]))
fillet.Radius = 4

# Sketch on YZ plane
sketch10 = doc.addObject("Sketcher::SketchObject", "Sketch009")
body.addObject(sketch10)
sketch10.AttachmentSupport = (doc.YZ_Plane, [""])
sketch10.MapMode = "FlatFace"
sketch10.AttachmentOffset = App.Placement(App.Vector(0, 0, -44.761905), App.Rotation())
add_polygon(sketch10, [(8.7, 0), (-15.3, 0), (-15.3, 1), (8.7, 1)])  # lines 0-3
sketch10.addConstraint(Sketcher.Constraint("Horizontal", 0))
sketch10.addConstraint(Sketcher.Constraint("Vertical", 1))
sketch10.addConstraint(Sketcher.Constraint("Horizontal", 2))
sketch10.addConstraint(Sketcher.Constraint("Vertical", 3))
sketch10.addConstraint(Sketcher.Constraint("PointOnObject", 0, 2, -1))
sketch10.addConstraint(Sketcher.Constraint("DistanceX", 0, 2, 0, 1, Q("24 mm")))
sketch10.addConstraint(Sketcher.Constraint("DistanceY", 1, 1, 1, 2, Q("1 mm")))
sketch10.addConstraint(Sketcher.Constraint("DistanceX", 0, 2, -1, 1, Q("15.305404 mm")))
pocket7 = doc.addObject("PartDesign::Pocket", "Pocket006")
body.addObject(pocket7)
pocket7.Profile = sketch10
pocket7.Length = 3
pocket7.Reversed = True

doc.recompute()
